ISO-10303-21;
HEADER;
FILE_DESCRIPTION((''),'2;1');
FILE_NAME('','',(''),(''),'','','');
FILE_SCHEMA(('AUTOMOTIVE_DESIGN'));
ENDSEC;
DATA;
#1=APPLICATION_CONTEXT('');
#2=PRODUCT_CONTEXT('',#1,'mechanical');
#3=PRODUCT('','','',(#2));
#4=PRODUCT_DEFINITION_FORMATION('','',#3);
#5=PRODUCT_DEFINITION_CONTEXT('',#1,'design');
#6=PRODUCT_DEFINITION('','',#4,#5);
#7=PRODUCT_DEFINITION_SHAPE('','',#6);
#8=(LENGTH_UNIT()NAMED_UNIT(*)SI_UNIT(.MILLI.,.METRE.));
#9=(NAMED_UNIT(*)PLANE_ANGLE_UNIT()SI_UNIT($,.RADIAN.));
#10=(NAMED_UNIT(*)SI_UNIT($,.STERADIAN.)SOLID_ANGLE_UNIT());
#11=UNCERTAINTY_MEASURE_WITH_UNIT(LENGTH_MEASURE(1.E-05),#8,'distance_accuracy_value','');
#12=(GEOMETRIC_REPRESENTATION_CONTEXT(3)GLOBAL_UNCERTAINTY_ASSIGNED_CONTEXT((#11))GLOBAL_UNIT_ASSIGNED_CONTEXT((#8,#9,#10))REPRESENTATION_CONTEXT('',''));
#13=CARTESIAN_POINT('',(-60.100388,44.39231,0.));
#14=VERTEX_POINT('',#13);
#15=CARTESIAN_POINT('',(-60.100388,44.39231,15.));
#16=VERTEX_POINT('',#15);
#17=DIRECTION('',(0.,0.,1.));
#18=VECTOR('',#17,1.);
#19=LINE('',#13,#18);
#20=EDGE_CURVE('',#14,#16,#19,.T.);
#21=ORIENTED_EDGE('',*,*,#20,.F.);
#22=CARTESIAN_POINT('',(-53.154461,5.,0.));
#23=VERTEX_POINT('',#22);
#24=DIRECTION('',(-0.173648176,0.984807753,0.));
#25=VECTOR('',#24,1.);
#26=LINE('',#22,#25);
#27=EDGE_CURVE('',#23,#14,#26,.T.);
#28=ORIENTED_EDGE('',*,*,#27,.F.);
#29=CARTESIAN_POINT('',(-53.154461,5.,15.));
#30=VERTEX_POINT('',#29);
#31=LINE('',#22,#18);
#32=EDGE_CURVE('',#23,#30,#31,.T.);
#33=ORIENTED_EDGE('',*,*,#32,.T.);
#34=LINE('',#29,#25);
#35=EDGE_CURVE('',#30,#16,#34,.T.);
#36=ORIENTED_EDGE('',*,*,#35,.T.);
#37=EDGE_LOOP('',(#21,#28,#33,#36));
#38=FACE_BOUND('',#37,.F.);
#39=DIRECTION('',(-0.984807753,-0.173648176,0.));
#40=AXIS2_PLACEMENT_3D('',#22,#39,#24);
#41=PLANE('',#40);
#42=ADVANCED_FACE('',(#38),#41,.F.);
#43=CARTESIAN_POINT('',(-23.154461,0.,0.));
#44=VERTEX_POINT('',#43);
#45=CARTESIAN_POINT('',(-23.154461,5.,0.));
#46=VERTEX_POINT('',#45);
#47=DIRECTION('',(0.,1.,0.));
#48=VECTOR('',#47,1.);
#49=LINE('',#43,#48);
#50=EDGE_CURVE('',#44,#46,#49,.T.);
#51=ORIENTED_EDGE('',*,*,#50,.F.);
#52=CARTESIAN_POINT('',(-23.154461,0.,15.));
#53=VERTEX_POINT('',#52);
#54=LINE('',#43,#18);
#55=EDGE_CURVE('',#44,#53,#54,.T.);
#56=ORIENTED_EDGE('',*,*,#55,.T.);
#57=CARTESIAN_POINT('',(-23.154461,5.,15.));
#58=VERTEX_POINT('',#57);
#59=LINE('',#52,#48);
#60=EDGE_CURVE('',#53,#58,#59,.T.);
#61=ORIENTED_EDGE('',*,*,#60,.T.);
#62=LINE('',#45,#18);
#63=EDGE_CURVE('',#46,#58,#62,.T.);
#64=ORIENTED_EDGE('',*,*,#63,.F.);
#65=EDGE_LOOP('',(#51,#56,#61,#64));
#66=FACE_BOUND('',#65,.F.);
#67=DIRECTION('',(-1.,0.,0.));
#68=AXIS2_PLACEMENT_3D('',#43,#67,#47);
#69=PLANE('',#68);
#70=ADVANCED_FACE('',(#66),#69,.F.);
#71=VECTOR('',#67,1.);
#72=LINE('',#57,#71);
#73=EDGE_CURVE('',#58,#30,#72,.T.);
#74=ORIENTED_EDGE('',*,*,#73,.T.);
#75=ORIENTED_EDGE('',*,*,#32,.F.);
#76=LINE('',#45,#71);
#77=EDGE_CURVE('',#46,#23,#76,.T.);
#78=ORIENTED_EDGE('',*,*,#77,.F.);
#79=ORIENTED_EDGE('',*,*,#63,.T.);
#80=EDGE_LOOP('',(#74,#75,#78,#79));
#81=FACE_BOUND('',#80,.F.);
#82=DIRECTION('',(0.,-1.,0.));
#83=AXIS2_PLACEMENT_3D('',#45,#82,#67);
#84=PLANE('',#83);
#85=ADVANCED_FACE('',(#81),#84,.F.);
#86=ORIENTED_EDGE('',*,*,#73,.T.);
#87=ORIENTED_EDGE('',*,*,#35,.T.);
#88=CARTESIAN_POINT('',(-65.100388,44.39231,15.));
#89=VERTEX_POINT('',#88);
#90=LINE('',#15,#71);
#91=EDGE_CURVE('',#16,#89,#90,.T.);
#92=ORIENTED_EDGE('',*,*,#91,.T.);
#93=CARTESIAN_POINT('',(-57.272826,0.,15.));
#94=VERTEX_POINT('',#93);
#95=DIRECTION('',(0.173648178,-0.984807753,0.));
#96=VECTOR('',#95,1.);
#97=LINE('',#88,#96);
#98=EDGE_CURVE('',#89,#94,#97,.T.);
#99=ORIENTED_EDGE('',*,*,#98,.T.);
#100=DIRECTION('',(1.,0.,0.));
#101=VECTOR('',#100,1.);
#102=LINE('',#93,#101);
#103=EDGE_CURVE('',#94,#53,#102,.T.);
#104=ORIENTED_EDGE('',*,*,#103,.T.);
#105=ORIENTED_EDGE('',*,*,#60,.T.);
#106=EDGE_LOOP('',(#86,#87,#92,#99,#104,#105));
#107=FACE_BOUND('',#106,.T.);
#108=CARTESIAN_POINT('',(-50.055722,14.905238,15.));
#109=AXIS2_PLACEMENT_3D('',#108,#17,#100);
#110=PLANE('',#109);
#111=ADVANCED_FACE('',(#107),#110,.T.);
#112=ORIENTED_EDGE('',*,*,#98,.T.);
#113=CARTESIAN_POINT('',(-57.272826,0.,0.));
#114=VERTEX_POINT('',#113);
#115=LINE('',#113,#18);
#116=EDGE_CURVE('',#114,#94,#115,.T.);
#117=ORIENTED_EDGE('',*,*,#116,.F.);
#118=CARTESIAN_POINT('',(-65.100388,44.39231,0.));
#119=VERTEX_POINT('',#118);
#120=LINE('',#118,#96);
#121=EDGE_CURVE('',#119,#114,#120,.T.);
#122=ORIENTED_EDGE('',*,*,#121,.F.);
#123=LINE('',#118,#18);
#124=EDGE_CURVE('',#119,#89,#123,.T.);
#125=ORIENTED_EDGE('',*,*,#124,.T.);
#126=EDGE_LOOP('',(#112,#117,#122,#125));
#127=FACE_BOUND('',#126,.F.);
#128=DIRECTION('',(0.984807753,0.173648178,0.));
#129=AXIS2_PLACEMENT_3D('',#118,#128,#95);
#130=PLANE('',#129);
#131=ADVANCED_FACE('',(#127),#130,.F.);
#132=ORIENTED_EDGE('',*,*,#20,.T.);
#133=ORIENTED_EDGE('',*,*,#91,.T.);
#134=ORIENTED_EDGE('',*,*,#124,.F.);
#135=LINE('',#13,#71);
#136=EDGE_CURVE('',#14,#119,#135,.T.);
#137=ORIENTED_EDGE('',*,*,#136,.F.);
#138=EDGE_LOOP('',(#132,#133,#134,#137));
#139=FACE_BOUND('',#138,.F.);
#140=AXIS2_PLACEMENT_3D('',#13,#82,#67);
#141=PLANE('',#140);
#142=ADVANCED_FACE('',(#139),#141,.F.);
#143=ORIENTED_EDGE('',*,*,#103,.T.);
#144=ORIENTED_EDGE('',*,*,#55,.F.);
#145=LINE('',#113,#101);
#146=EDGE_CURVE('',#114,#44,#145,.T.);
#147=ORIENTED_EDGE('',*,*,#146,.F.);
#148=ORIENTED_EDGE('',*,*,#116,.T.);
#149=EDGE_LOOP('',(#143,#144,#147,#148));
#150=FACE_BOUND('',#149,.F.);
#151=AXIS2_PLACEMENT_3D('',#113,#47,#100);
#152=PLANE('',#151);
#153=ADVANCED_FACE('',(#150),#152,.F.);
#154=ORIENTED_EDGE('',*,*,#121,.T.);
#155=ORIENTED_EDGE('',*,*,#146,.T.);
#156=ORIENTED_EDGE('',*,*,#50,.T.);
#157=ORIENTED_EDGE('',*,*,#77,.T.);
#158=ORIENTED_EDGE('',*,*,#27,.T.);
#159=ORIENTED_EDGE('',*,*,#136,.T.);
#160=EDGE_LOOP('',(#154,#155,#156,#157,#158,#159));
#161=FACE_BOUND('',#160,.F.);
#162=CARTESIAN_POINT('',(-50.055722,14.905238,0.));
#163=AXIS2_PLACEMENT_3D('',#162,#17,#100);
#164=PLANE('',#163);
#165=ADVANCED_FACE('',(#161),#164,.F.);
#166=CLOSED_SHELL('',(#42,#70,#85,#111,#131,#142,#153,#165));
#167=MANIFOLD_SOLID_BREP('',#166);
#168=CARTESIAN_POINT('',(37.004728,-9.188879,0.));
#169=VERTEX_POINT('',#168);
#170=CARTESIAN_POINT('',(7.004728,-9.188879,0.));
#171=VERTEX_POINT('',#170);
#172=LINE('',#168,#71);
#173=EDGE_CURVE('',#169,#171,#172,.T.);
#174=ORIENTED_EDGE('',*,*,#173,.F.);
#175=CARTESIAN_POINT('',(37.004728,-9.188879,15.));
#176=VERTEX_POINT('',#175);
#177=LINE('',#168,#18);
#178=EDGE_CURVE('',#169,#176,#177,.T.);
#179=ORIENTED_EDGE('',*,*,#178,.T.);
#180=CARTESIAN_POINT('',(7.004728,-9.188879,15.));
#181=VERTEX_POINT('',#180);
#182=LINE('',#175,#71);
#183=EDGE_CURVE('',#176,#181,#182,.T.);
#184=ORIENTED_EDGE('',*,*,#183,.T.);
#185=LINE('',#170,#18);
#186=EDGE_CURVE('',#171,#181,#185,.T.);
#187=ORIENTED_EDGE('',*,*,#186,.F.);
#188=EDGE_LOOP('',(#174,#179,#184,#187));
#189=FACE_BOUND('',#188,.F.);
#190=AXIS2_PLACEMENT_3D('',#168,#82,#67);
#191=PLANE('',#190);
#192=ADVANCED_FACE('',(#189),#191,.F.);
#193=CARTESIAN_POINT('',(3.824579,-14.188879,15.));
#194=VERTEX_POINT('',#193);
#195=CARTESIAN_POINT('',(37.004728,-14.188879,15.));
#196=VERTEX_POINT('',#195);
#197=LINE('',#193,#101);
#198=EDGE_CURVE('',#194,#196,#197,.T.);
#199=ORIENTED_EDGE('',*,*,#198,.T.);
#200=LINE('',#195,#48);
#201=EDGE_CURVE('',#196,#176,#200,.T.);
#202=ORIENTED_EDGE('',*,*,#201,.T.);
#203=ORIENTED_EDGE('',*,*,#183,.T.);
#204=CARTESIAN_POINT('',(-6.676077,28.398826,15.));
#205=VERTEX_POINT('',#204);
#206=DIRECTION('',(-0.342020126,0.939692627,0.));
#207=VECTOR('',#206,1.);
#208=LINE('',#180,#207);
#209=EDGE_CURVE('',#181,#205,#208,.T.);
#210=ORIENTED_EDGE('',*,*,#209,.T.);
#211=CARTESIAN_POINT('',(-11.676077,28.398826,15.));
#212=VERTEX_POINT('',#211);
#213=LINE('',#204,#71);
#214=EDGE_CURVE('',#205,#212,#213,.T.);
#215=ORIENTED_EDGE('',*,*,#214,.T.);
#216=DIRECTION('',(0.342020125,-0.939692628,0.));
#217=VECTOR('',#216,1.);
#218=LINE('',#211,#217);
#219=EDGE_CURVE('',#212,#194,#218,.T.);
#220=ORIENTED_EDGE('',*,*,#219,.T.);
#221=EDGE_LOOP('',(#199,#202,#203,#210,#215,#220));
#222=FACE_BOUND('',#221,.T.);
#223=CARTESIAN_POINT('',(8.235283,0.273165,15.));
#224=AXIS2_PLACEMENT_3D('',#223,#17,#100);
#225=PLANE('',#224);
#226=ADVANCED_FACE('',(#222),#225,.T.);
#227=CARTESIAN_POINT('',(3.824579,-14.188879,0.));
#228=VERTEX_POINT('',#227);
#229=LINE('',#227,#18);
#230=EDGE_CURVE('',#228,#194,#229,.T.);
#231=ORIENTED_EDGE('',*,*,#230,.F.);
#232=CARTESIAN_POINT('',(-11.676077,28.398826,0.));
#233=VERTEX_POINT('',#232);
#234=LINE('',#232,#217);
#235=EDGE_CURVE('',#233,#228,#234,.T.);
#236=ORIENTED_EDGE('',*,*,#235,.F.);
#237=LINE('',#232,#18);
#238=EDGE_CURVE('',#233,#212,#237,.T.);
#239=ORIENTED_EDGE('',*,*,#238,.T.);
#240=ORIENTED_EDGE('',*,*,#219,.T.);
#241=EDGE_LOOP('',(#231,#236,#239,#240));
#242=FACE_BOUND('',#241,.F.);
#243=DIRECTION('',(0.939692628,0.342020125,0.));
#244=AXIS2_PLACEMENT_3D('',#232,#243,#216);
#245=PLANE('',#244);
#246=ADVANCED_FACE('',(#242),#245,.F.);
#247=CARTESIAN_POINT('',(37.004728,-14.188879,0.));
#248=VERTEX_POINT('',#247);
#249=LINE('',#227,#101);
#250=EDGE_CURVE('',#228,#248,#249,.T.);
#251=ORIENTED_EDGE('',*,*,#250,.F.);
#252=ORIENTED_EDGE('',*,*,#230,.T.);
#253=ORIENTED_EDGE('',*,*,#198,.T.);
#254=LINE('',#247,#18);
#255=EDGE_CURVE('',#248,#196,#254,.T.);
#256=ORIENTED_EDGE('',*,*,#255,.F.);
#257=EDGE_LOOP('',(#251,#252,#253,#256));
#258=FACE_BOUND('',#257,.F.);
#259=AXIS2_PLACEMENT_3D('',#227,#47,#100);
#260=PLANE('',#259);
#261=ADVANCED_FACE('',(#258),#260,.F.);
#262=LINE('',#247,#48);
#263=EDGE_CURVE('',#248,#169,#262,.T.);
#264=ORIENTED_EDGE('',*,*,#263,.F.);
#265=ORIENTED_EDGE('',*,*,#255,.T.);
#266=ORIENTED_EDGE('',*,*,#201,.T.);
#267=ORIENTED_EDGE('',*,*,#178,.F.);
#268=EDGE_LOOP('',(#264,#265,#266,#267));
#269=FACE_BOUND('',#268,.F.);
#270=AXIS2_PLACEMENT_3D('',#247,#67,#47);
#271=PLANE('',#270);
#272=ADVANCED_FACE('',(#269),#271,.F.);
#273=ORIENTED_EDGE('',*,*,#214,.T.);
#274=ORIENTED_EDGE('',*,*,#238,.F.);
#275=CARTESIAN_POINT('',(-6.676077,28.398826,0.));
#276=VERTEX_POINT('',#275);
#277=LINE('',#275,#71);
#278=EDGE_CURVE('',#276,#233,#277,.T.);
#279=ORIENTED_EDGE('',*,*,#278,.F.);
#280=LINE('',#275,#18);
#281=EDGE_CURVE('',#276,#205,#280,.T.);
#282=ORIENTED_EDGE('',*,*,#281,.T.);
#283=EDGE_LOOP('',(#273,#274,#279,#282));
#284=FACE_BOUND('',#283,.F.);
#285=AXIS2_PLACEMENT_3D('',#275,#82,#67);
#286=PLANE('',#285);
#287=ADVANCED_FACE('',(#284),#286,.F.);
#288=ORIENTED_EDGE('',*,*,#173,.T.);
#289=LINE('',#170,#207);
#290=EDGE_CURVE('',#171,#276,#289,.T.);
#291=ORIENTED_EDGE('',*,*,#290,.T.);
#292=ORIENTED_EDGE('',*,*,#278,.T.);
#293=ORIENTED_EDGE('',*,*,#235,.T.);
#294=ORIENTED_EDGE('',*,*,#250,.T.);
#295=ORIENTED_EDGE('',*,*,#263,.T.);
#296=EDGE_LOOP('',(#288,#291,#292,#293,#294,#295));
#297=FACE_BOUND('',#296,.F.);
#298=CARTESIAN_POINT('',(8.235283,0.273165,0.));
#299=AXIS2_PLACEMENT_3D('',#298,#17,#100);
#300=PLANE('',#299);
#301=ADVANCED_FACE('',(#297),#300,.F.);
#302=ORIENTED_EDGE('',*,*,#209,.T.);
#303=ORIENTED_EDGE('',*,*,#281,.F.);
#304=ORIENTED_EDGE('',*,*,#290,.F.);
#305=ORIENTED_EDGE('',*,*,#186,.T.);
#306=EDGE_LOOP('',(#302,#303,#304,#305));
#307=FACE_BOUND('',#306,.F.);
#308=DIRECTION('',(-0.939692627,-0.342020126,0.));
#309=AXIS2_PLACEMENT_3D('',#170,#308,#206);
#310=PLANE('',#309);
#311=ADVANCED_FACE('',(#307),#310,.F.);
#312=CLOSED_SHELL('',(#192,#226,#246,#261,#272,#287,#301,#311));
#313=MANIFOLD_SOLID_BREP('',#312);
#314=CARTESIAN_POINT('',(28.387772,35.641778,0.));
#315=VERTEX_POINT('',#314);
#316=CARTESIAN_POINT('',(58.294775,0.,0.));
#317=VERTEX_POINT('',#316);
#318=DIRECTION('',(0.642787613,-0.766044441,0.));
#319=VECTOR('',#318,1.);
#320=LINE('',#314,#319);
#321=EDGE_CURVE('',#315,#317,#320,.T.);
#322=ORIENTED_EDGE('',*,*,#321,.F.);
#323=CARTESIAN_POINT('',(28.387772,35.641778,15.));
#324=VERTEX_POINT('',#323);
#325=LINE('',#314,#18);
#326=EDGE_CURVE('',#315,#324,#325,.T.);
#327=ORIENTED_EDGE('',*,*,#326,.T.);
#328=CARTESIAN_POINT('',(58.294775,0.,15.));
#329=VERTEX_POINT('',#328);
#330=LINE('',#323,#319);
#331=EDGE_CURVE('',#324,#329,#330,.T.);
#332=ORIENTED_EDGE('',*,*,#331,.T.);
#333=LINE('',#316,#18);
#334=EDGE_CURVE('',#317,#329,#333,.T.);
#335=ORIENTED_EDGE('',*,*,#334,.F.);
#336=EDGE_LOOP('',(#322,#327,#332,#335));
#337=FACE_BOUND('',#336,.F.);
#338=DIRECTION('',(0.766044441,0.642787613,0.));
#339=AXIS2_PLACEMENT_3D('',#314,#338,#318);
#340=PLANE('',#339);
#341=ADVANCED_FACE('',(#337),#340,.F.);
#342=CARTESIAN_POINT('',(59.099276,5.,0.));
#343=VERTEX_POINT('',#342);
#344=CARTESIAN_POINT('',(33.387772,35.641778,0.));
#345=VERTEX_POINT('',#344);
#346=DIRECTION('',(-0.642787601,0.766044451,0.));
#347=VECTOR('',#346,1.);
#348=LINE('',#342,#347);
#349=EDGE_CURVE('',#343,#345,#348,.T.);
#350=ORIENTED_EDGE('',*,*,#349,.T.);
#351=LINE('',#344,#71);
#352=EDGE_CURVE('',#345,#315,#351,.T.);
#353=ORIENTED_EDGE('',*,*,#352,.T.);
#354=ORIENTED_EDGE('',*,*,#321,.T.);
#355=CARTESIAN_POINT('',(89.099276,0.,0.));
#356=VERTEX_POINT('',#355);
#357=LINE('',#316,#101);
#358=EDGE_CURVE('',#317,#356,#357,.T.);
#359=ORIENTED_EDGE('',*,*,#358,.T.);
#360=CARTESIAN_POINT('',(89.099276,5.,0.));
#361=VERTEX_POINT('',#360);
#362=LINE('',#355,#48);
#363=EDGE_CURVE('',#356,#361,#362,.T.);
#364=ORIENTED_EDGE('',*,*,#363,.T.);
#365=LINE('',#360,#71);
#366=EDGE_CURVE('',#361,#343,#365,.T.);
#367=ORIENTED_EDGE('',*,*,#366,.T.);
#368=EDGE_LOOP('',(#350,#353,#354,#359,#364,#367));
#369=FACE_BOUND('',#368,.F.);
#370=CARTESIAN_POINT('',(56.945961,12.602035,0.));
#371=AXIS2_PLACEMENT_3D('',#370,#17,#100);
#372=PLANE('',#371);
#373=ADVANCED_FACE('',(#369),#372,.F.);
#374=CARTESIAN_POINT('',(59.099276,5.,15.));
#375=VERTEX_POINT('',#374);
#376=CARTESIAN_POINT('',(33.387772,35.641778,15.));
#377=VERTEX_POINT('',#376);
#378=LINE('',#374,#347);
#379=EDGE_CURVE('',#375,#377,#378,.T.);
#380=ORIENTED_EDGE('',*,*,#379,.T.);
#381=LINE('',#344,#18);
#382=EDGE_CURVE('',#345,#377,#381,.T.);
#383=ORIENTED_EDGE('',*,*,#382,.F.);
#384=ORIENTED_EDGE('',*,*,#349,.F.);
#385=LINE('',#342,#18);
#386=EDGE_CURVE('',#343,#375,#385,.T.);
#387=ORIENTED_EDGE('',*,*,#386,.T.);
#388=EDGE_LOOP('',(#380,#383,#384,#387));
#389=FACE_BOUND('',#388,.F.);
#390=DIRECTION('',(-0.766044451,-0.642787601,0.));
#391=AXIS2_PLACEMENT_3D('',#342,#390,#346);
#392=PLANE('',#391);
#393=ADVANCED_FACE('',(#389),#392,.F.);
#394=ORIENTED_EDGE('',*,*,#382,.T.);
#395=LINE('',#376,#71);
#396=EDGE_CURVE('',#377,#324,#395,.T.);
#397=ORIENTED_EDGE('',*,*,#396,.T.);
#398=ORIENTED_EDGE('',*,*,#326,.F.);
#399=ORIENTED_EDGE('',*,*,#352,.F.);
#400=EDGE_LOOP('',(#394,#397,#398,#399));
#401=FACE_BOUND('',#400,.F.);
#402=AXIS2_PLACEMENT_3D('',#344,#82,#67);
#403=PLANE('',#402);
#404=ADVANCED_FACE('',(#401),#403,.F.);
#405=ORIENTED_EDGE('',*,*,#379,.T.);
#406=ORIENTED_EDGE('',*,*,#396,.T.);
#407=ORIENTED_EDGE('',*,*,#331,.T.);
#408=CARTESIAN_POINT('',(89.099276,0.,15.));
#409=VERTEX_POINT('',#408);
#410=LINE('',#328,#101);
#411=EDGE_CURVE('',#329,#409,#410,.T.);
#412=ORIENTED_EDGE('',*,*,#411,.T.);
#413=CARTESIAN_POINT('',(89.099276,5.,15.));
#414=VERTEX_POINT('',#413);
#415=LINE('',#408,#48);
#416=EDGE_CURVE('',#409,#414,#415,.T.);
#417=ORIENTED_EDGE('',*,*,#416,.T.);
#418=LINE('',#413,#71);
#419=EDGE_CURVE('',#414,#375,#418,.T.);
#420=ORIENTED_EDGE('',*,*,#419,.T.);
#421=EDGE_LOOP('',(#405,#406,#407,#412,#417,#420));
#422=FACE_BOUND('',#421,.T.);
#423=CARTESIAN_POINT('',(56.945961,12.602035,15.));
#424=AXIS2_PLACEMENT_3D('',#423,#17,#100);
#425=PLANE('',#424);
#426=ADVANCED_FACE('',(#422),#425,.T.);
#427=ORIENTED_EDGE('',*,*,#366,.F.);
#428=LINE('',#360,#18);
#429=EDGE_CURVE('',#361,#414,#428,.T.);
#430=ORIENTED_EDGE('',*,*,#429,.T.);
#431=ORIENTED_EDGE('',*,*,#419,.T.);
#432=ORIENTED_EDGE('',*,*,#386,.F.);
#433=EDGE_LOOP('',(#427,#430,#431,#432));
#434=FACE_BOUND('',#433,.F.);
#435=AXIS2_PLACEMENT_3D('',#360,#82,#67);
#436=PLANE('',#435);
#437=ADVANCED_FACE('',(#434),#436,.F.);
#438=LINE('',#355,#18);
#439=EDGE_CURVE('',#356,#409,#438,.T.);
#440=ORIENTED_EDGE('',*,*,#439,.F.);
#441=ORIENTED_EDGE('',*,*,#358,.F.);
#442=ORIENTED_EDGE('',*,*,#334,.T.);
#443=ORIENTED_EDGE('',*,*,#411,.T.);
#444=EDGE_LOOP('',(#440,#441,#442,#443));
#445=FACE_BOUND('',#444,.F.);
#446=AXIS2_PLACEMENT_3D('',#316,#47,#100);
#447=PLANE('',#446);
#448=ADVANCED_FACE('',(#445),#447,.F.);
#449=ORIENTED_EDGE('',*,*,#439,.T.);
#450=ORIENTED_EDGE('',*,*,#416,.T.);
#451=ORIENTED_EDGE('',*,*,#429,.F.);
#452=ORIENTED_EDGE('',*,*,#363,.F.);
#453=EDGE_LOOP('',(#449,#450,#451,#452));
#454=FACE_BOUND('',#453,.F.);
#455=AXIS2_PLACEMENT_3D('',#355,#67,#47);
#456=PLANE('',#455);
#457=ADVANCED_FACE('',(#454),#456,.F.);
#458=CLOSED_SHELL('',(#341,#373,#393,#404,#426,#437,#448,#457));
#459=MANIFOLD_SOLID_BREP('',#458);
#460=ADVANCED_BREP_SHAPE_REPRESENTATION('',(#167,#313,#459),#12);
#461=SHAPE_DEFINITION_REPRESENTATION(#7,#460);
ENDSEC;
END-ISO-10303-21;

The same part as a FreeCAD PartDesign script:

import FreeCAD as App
import Part
import Sketcher

V = App.Vector
Q = App.Units.Quantity


def add_polygon(sketch, points):
    """Adds a closed chain of lines whose ends are joined by coincident constraints."""
    first, n = sketch.GeometryCount, len(points)
    for a, b in zip(points, points[1:] + points[:1]):
        sketch.addGeometry(Part.LineSegment(App.Vector(*a, 0), App.Vector(*b, 0)), False)
    for i in range(n):
        sketch.addConstraint(Sketcher.Constraint("Coincident", first + i, 2, first + (i + 1) % n, 1))

doc = App.newDocument("Part")
params = doc.addObject("Spreadsheet::Sheet", "Params")
for row, (alias, value) in enumerate([
    ("sketch1_width", "5 mm"),
    ("sketch1_width2", "30 mm"),
    ("sketch1_length", "40 mm"),
    ("pad1_length", "15 mm"),
], start=1):
    params.set(f"A{row}", alias)
    params.set(f"B{row}", "=" + value)
    params.setAlias(f"B{row}", alias)

body = doc.addObject("PartDesign::Body", "Body")
body.AllowCompound = True

# Sketch on XY plane
sketch1 = body.newObject("Sketcher::SketchObject", "Sketch")
sketch1.AttachmentSupport = (doc.getObject("XY_Plane"), [""])
sketch1.MapMode = "FlatFace"
add_polygon(sketch1, [(-60.100388, 44.39231), (-65.100388, 44.39231), (-57.272826, 0), (-23.154461, 0), (-23.154461, 5), (-53.154461, 5)])  # lines 0-5
add_polygon(sketch1, [(-6.676077, 28.398826), (-11.676077, 28.398826), (3.824579, -14.188879), (37.004728, -14.188879), (37.004728, -9.188879), (7.004728, -9.188879)])  # lines 6-11
add_polygon(sketch1, [(33.387772, 35.641778), (28.387772, 35.641778), (58.294775, 0), (89.099276, 0), (89.099276, 5), (59.099276, 5)])  # lines 12-17
sketch1.addConstraint([
    Sketcher.Constraint("Horizontal", 0),
    Sketcher.Constraint("Horizontal", 2),
    Sketcher.Constraint("Vertical", 3),
    Sketcher.Constraint("Horizontal", 4),
    Sketcher.Constraint("Horizontal", 6),
    Sketcher.Constraint("Horizontal", 8),
    Sketcher.Constraint("Vertical", 9),
    Sketcher.Constraint("Horizontal", 10),
    Sketcher.Constraint("Horizontal", 12),
    Sketcher.Constraint("Horizontal", 14),
    Sketcher.Constraint("Vertical", 15),
    Sketcher.Constraint("Horizontal", 16),
    Sketcher.Constraint("PointOnObject", 1, 2, -1),
    Sketcher.Constraint("PointOnObject", 13, 2, -1),
    Sketcher.Constraint("Parallel", 1, 5),
    Sketcher.Constraint("Parallel", 7, 11),
    Sketcher.Constraint("Parallel", 13, 17),
    Sketcher.Constraint("Horizontal", 4, 2, 15, 2),
    Sketcher.Constraint("Equal", 0, 6),
    Sketcher.Constraint("Equal", 4, 10),
    Sketcher.Constraint("Equal", 6, 12),
    Sketcher.Constraint("Equal", 10, 16),
    Sketcher.Constraint("Equal", 12, 3),
    Sketcher.Constraint("Equal", 3, 9),
    Sketcher.Constraint("Equal", 5, 11),
    Sketcher.Constraint("Equal", 11, 17),
    Sketcher.Constraint("DistanceX", 0, 2, 0, 1, 5.0),
    Sketcher.Constraint("DistanceX", 4, 2, 4, 1, 30.0),
    Sketcher.Constraint("Angle", 1, Q("-80 deg")),
    Sketcher.Constraint("Angle", 7, Q("-70.000001 deg")),
    Sketcher.Constraint("Angle", 13, Q("-50 deg")),
    Sketcher.Constraint("Distance", 5, 40.0),
    Sketcher.Constraint("DistanceX", 2, 2, -1, 1, 23.154461),
    Sketcher.Constraint("DistanceX", -1, 1, 7, 2, 3.824579),
    Sketcher.Constraint("DistanceY", 7, 2, -1, 1, 14.188879),
    Sketcher.Constraint("DistanceX", -1, 1, 12, 2, 28.387772),
])
sketch1.setExpression("Constraints[44]", "Params.sketch1_width")
sketch1.setExpression("Constraints[45]", "Params.sketch1_width2")
sketch1.setExpression("Constraints[49]", "Params.sketch1_length")
pad1 = body.newObject("PartDesign::Pad", "Pad")
pad1.Profile = sketch1
pad1.setExpression("Length", "Params.pad1_length")

doc.recompute()
